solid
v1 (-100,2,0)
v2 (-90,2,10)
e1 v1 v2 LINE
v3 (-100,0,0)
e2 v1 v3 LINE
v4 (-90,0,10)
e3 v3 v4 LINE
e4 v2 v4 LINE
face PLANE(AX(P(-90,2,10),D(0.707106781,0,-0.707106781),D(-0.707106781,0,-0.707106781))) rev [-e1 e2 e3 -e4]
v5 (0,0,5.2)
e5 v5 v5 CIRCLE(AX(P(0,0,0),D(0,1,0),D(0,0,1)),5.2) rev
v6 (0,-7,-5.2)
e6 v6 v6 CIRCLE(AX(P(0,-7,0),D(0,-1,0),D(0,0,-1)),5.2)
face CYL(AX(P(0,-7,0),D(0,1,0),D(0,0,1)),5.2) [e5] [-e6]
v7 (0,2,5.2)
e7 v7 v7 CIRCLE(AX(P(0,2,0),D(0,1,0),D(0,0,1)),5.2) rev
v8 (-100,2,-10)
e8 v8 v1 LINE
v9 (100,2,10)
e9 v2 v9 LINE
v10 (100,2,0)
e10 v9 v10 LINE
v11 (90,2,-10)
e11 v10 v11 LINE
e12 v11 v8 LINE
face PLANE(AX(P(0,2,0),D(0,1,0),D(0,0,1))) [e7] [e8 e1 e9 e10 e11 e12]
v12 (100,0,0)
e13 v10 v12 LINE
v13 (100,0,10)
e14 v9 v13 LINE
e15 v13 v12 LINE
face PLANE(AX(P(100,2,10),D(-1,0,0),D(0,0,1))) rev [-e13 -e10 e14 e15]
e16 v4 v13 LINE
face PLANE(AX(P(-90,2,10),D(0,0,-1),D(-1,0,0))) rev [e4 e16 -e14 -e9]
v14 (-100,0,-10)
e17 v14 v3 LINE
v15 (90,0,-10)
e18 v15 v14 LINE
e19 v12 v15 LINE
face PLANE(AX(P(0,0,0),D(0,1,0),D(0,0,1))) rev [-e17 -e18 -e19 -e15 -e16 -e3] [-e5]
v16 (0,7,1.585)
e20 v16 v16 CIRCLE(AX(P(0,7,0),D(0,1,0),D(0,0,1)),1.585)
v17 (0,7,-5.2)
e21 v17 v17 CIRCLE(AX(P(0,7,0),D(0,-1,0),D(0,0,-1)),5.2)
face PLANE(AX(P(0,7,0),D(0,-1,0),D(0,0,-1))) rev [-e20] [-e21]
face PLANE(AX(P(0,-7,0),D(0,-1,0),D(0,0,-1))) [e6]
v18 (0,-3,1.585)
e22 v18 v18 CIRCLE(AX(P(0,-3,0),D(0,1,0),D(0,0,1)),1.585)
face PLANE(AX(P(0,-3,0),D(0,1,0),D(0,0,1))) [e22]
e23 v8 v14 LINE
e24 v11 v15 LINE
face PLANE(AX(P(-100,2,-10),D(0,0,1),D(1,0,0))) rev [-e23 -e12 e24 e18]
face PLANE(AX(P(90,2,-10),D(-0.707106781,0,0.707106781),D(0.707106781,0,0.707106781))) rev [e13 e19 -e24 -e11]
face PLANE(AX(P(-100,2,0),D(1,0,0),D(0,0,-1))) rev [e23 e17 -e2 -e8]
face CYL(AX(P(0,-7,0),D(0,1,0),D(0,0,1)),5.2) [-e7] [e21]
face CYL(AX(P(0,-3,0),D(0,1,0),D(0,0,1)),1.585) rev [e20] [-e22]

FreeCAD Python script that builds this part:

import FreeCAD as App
import Part
import Sketcher

V = App.Vector
Q = App.Units.Quantity

doc = App.newDocument("Part")
body = doc.addObject("PartDesign::Body", "Body")

# Sketch on XZ plane
sketch1 = body.newObject("Sketcher::SketchObject", "Sketch")
sketch1.AttachmentSupport = (doc.getObject("XZ_Plane"), [""])
sketch1.MapMode = "FlatFace"
sketch1.addGeometry([
    Part.LineSegment(V(100, 0, 0), V(90, -10, 0)),  # 0
    Part.LineSegment(V(90, -10, 0), V(-100, -10, 0)),  # 1
    Part.LineSegment(V(-100, -10, 0), V(-100, 0, 0)),  # 2
    Part.LineSegment(V(-100, 0, 0), V(-90, 10, 0)),  # 3
    Part.LineSegment(V(-90, 10, 0), V(100, 10, 0)),  # 4
    Part.LineSegment(V(100, 10, 0), V(100, 0, 0)),  # 5
    Part.Circle(V(0, 0, 0), V(0, 0, 1), 1.6),  # 6
], False)
sketch1.addConstraint([
    Sketcher.Constraint("Coincident", 0, 2, 1, 1),
    Sketcher.Constraint("Coincident", 1, 2, 2, 1),
    Sketcher.Constraint("Coincident", 2, 2, 3, 1),
    Sketcher.Constraint("Coincident", 3, 2, 4, 1),
    Sketcher.Constraint("Coincident", 4, 2, 5, 1),
    Sketcher.Constraint("Coincident", 5, 2, 0, 1),
    Sketcher.Constraint("Horizontal", 1),
    Sketcher.Constraint("Vertical", 2),
    Sketcher.Constraint("Horizontal", 4),
    Sketcher.Constraint("Vertical", 5),
    Sketcher.Constraint("Coincident", 6, 3, -1, 1),
    Sketcher.Constraint("Symmetric", 0, 2, 3, 2, -1, 1),
    Sketcher.Constraint("Symmetric", 2, 2, 5, 2, -1, 1),
    Sketcher.Constraint("PointOnObject", 2, 2, -1),
    Sketcher.Constraint("Diameter", 6, Q("3.17 mm")),
    Sketcher.Constraint("DistanceX", 1, 2, 1, 1, Q("190 mm")),
    Sketcher.Constraint("DistanceY", 2, 1, 2, 2, Q("10 mm")),
    Sketcher.Constraint("Angle", 0, Q("-135 deg")),
])
pad1 = body.newObject("PartDesign::Pad", "Pad")
pad1.Profile = sketch1
pad1.Length = 2
pad1.Reversed = True

# Sketch on XZ plane
sketch2 = body.newObject("Sketcher::SketchObject", "Sketch001")
sketch2.AttachmentSupport = (doc.getObject("XZ_Plane"), [""])
sketch2.MapMode = "FlatFace"
sketch2.addGeometry(Part.Circle(V(0, 0, 0), V(0, 0, 1), 5), False)
sketch2.addConstraint([
    Sketcher.Constraint("Coincident", 0, 3, -1, 1),
    Sketcher.Constraint("Diameter", 0, Q("10.4 mm")),
])
pad2 = body.newObject("PartDesign::Pad", "Pad001")
pad2.Profile = sketch2
pad2.Length = 14
pad2.Midplane = True

# Sketch on XZ plane
sketch3 = body.newObject("Sketcher::SketchObject", "Sketch002")
sketch3.AttachmentSupport = (doc.getObject("XZ_Plane"), [""])
sketch3.MapMode = "FlatFace"
sketch3.AttachmentOffset = App.Placement(V(0, 0, -7), App.Rotation())
sketch3.addGeometry(Part.Circle(V(0, 0, 0), V(0, 0, 1), 1.6), False)
sketch3.addConstraint([
    Sketcher.Constraint("Coincident", 0, 3, -1, 1),
    Sketcher.Constraint("Diameter", 0, Q("3.17 mm")),
])
pocket1 = body.newObject("PartDesign::Pocket", "Pocket")
pocket1.Profile = sketch3
pocket1.Length = 10
pocket1.Reversed = True

doc.recompute()
